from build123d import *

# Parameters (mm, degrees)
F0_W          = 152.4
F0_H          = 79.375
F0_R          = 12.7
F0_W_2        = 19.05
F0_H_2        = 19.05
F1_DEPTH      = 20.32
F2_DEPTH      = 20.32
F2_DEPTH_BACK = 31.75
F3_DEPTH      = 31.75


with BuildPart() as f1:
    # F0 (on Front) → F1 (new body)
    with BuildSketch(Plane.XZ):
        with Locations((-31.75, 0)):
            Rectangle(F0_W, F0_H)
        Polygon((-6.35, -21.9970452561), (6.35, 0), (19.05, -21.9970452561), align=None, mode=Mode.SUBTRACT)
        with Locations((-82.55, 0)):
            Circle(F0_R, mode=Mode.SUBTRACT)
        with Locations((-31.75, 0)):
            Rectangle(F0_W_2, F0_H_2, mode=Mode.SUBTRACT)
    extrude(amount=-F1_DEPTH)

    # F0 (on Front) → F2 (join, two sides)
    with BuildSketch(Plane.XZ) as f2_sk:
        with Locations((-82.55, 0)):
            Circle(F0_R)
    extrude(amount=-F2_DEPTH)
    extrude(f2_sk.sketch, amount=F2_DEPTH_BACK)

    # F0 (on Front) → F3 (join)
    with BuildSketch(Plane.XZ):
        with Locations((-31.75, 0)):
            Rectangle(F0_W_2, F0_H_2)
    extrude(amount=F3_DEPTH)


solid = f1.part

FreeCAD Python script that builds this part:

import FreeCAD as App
import Part
import Sketcher
from FreeCAD import Vector
Q = App.Units.Quantity

doc = App.newDocument("Part")
body = doc.addObject("PartDesign::Body", "Body")
body.AllowCompound = True

# Sketch on XZ plane
sketch1 = body.newObject("Sketcher::SketchObject", "Sketch")
sketch1.AttachmentSupport = (doc.getObject("XZ_Plane"), [""])
sketch1.MapMode = "FlatFace"
sketch1.addGeometry([
    Part.LineSegment(Vector(-107.95, 39.6875, 0), Vector(-107.95, -39.6875, 0)),  # 0
    Part.LineSegment(Vector(-107.95, -39.6875, 0), Vector(44.45, -39.6875, 0)),  # 1
    Part.LineSegment(Vector(44.45, -39.6875, 0), Vector(44.45, 39.6875, 0)),  # 2
    Part.LineSegment(Vector(44.45, 39.6875, 0), Vector(-107.95, 39.6875, 0)),  # 3
    Part.LineSegment(Vector(19.05, -21.997045, 0), Vector(-6.35, -21.997045, 0)),  # 4
    Part.LineSegment(Vector(-6.35, -21.997045, 0), Vector(6.35, 0, 0)),  # 5
    Part.LineSegment(Vector(6.35, 0, 0), Vector(19.05, -21.997045, 0)),  # 6
    Part.Circle(Vector(-82.55, 0, 0), Vector(0, 0, 1), 12.7),  # 7
    Part.LineSegment(Vector(-22.225, -9.525, 0), Vector(-41.275, -9.525, 0)),  # 8
    Part.LineSegment(Vector(-41.275, -9.525, 0), Vector(-41.275, 9.525, 0)),  # 9
    Part.LineSegment(Vector(-41.275, 9.525, 0), Vector(-22.225, 9.525, 0)),  # 10
    Part.LineSegment(Vector(-22.225, 9.525, 0), Vector(-22.225, -9.525, 0)),  # 11
], False)
sketch1.addConstraint([
    Sketcher.Constraint("Coincident", 0, 2, 1, 1),
    Sketcher.Constraint("Coincident", 1, 2, 2, 1),
    Sketcher.Constraint("Coincident", 2, 2, 3, 1),
    Sketcher.Constraint("Coincident", 3, 2, 0, 1),
    Sketcher.Constraint("Coincident", 4, 2, 5, 1),
    Sketcher.Constraint("Coincident", 5, 2, 6, 1),
    Sketcher.Constraint("Coincident", 6, 2, 4, 1),
    Sketcher.Constraint("Coincident", 8, 2, 9, 1),
    Sketcher.Constraint("Coincident", 9, 2, 10, 1),
    Sketcher.Constraint("Coincident", 10, 2, 11, 1),
    Sketcher.Constraint("Coincident", 11, 2, 8, 1),
    Sketcher.Constraint("Vertical", 0),
    Sketcher.Constraint("Horizontal", 1),
    Sketcher.Constraint("Vertical", 2),
    Sketcher.Constraint("Horizontal", 3),
    Sketcher.Constraint("Horizontal", 4),
    Sketcher.Constraint("Horizontal", 8),
    Sketcher.Constraint("Vertical", 9),
    Sketcher.Constraint("Horizontal", 10),
    Sketcher.Constraint("Vertical", 11),
    Sketcher.Constraint("PointOnObject", 7, 3, -1),
    Sketcher.Constraint("PointOnObject", 5, 2, -1),
    Sketcher.Constraint("Equal", 10, 9),
    Sketcher.Constraint("Equal", 5, 6),
    Sketcher.Constraint("Diameter", 7, Q("1 in")),
    Sketcher.Constraint("DistanceX", 1, 1, 1, 2, Q("6 in")),
    Sketcher.Constraint("DistanceX", 4, 2, 4, 1, Q("1 in")),
    Sketcher.Constraint("Distance", 5, Q("1 in")),
    Sketcher.Constraint("DistanceX", 0, 2, 7, 3, Q("1 in")),
    Sketcher.Constraint("DistanceX", 4, 2, 1, 2, Q("2 in")),
    Sketcher.Constraint("DistanceX", 8, 2, 8, 1, Q("0.75 in")),
    Sketcher.Constraint("DistanceY", 0, 2, 0, 1, Q("3.125 in")),
    Sketcher.Constraint("DistanceX", 7, 3, -1, 1, Q("3.25 in")),
    Sketcher.Constraint("DistanceY", 0, 2, -1, 1, Q("1.5625 in")),
    Sketcher.Constraint("DistanceX", 8, 2, -1, 1, Q("1.625 in")),
    Sketcher.Constraint("DistanceY", 8, 2, -1, 1, Q("0.375 in")),
])
pad1 = body.newObject("PartDesign::Pad", "Pad")
pad1.Profile = sketch1
pad1.Length = Q("0.8 in")
pad1.Reversed = True

# Sketch on XZ plane
sketch2 = body.newObject("Sketcher::SketchObject", "Sketch001")
sketch2.AttachmentSupport = (doc.getObject("XZ_Plane"), [""])
sketch2.MapMode = "FlatFace"
sketch2.addGeometry(Part.Circle(Vector(-82.55, 0, 0), Vector(0, 0, 1), 12.7), False)
sketch2.addConstraint([
    Sketcher.Constraint("PointOnObject", 0, 3, -1),
    Sketcher.Constraint("Diameter", 0, Q("1 in")),
    Sketcher.Constraint("DistanceX", 0, 3, -1, 1, Q("3.25 in")),
])
pad2 = body.newObject("PartDesign::Pad", "Pad001")
pad2.Profile = sketch2
pad2.Type = "TwoLengths"
pad2.Length = Q("0.8 in")
pad2.Length2 = Q("1.25 in")
pad2.Reversed = True

# Sketch on XZ plane
sketch3 = body.newObject("Sketcher::SketchObject", "Sketch002")
sketch3.AttachmentSupport = (doc.getObject("XZ_Plane"), [""])
sketch3.MapMode = "FlatFace"
sketch3.addGeometry([
    Part.LineSegment(Vector(-41.275, 9.525, 0), Vector(-41.275, -9.525, 0)),
    Part.LineSegment(Vector(-41.275, -9.525, 0), Vector(-22.225, -9.525, 0)),
    Part.LineSegment(Vector(-22.225, -9.525, 0), Vector(-22.225, 9.525, 0)),
    Part.LineSegment(Vector(-22.225, 9.525, 0), Vector(-41.275, 9.525, 0)),
], False)
sketch3.addConstraint([
    Sketcher.Constraint("Coincident", 0, 2, 1, 1),
    Sketcher.Constraint("Coincident", 1, 2, 2, 1),
    Sketcher.Constraint("Coincident", 2, 2, 3, 1),
    Sketcher.Constraint("Coincident", 3, 2, 0, 1),
    Sketcher.Constraint("Vertical", 0),
    Sketcher.Constraint("Horizontal", 1),
    Sketcher.Constraint("Vertical", 2),
    Sketcher.Constraint("Horizontal", 3),
    Sketcher.Constraint("Equal", 3, 0),
    Sketcher.Constraint("DistanceX", 1, 1, 1, 2, Q("0.75 in")),
    Sketcher.Constraint("DistanceX", 0, 2, -1, 1, Q("1.625 in")),
    Sketcher.Constraint("DistanceY", 0, 2, -1, 1, Q("0.375 in")),
])
pad3 = body.newObject("PartDesign::Pad", "Pad002")
pad3.Profile = sketch3
pad3.Length = Q("1.25 in")

doc.recompute()
